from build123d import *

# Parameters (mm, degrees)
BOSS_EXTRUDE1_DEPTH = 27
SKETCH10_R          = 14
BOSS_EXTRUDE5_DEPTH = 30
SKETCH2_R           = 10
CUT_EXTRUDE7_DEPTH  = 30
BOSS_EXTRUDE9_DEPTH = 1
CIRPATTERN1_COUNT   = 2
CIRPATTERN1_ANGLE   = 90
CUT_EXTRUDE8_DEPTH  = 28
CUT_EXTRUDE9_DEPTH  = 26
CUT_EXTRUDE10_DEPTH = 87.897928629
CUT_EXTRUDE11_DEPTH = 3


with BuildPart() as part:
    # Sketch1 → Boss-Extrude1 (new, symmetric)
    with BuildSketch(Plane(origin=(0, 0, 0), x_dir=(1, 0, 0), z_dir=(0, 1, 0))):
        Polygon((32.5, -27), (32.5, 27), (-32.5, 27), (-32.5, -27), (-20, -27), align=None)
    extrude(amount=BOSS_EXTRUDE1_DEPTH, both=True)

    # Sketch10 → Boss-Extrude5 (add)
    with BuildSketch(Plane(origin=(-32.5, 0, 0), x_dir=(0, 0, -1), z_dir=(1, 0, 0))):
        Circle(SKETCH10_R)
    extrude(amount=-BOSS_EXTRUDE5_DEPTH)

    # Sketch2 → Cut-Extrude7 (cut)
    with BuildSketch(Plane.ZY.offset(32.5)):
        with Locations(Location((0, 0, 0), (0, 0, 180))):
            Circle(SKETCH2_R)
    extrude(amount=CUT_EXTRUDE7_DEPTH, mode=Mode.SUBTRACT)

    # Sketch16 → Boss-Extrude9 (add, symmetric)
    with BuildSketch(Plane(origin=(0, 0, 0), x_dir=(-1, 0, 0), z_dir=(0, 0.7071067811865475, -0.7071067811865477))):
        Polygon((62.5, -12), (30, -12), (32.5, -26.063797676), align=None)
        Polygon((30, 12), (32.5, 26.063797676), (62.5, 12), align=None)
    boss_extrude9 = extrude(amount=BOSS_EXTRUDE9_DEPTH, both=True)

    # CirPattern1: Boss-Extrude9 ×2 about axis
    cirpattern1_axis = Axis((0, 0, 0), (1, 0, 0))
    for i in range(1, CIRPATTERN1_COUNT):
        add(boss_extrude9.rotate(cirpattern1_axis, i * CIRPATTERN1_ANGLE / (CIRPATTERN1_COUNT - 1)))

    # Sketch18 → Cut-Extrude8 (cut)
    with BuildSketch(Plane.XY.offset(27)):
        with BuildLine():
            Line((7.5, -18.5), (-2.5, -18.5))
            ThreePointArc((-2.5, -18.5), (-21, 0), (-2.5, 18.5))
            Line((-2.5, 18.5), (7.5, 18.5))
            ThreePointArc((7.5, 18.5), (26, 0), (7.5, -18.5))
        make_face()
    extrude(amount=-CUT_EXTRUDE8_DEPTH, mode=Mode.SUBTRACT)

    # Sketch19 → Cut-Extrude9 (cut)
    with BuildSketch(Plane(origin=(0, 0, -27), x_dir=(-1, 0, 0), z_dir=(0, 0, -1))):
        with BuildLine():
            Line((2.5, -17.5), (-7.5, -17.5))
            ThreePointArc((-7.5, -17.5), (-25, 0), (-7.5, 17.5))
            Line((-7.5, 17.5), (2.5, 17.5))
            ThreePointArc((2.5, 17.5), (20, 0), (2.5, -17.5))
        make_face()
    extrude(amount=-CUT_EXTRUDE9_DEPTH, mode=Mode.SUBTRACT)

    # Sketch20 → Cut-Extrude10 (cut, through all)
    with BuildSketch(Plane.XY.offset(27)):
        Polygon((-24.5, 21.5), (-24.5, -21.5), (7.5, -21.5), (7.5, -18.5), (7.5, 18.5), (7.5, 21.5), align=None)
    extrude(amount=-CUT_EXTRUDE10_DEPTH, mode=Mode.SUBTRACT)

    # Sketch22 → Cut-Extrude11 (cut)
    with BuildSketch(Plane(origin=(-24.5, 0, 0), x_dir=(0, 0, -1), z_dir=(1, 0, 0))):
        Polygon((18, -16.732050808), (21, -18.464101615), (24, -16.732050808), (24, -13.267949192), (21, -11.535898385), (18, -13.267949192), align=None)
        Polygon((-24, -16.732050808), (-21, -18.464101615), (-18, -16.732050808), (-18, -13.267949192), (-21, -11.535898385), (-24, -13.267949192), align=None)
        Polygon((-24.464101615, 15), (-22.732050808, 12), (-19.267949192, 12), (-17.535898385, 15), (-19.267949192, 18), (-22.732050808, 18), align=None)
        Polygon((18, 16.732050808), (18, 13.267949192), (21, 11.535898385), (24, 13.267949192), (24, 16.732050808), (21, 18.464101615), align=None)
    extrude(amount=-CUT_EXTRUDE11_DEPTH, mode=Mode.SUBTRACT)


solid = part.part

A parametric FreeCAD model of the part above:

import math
import FreeCAD as App
import Part
import Sketcher
from FreeCAD import Vector
Q = App.Units.Quantity

doc = App.newDocument("Part")
params = doc.addObject("Spreadsheet::Sheet", "Params")
for row, (alias, value) in enumerate([
    ("sketch1_width", "65 mm"),
    ("sketch1_height", "54 mm"),
    ("pad1_length", "54 mm"),
    ("sketch2_diameter", "28 mm"),
    ("pad2_length", "30 mm"),
    ("sketch3_diameter", "20 mm"),
    ("pocket1_length", "30 mm"),
    ("sketch4_width", "32.5 mm"),
    ("pad3_length", "2 mm"),
    ("sketch5_radius", "18.5 mm"),
    ("sketch5_width", "10 mm"),
    ("pocket2_length", "28 mm"),
    ("sketch6_radius", "17.5 mm"),
    ("sketch6_width", "10 mm"),
    ("pocket3_length", "26 mm"),
    ("sketch7_width", "32 mm"),
    ("sketch7_height", "43 mm"),
    ("pocket5_length", "3 mm"),
], start=1):
    params.set(f"A{row}", alias)
    params.set(f"B{row}", "=" + value)
    params.setAlias(f"B{row}", alias)

body = doc.addObject("PartDesign::Body", "Body")

# Sketch on XZ plane
sketch1 = body.newObject("Sketcher::SketchObject", "Sketch")
sketch1.AttachmentSupport = (doc.getObject("XZ_Plane"), [""])
sketch1.MapMode = "FlatFace"
sketch1.addGeometry([
    Part.LineSegment(Vector(32, 27, 0), Vector(32, -27, 0)),
    Part.LineSegment(Vector(32, -27, 0), Vector(-32, -27, 0)),
    Part.LineSegment(Vector(-32, -27, 0), Vector(-32, 27, 0)),
    Part.LineSegment(Vector(-32, 27, 0), Vector(32, 27, 0)),
], False)
sketch1.addConstraint([
    Sketcher.Constraint("Coincident", 0, 2, 1, 1),
    Sketcher.Constraint("Coincident", 1, 2, 2, 1),
    Sketcher.Constraint("Coincident", 2, 2, 3, 1),
    Sketcher.Constraint("Coincident", 3, 2, 0, 1),
    Sketcher.Constraint("Vertical", 0),
    Sketcher.Constraint("Horizontal", 1),
    Sketcher.Constraint("Vertical", 2),
    Sketcher.Constraint("Horizontal", 3),
    Sketcher.Constraint("Symmetric", 0, 2, 2, 2, -1, 1),
    Sketcher.Constraint("DistanceX", 1, 2, 1, 1, 65.0),
    Sketcher.Constraint("DistanceY", 0, 2, 0, 1, 54.0),
])
sketch1.setExpression("Constraints[9]", "Params.sketch1_width")
sketch1.setExpression("Constraints[10]", "Params.sketch1_height")
pad1 = body.newObject("PartDesign::Pad", "Pad")
pad1.Profile = sketch1
pad1.setExpression("Length", "Params.pad1_length")
pad1.Midplane = True

# Sketch on YZ plane
sketch2 = body.newObject("Sketcher::SketchObject", "Sketch001")
sketch2.AttachmentSupport = (doc.getObject("YZ_Plane"), [""])
sketch2.MapMode = "FlatFace"
sketch2.AttachmentOffset = App.Placement(Vector(0, 0, -32.5), App.Rotation())
sketch2.addGeometry(Part.Circle(Vector(0, 0, 0), Vector(0, 0, 1), 14), False)
sketch2.addConstraint([
    Sketcher.Constraint("Coincident", 0, 3, -1, 1),
    Sketcher.Constraint("Diameter", 0, 28.0),
])
sketch2.setExpression("Constraints[1]", "Params.sketch2_diameter")
pad2 = body.newObject("PartDesign::Pad", "Pad001")
pad2.Profile = sketch2
pad2.setExpression("Length", "Params.pad2_length")
pad2.Reversed = True

# Sketch on YZ plane
sketch3 = body.newObject("Sketcher::SketchObject", "Sketch002")
sketch3.AttachmentSupport = (doc.getObject("YZ_Plane"), [""])
sketch3.MapMode = "FlatFace"
sketch3.AttachmentOffset = App.Placement(Vector(0, 0, -32.5), App.Rotation())
sketch3.addGeometry(Part.Circle(Vector(0, 0, 0), Vector(0, 0, 1), 10), False)
sketch3.addConstraint([
    Sketcher.Constraint("Coincident", 0, 3, -1, 1),
    Sketcher.Constraint("Diameter", 0, 20.0),
])
sketch3.setExpression("Constraints[1]", "Params.sketch3_diameter")
pocket1 = body.newObject("PartDesign::Pocket", "Pocket")
pocket1.Profile = sketch3
pocket1.setExpression("Length", "Params.pocket1_length")

# Sketch on an angled plane
sketch4 = body.newObject("Sketcher::SketchObject", "Sketch003")
sketch4.Placement = App.Placement(Vector(0, 0, 0), App.Rotation(Vector(-1, 0, 0), Vector(0, 0.707106781, 0.707106781), Vector(0, 0.707106781, -0.707106781), "ZXY"))
sketch4.addGeometry([
    Part.LineSegment(Vector(62, -12, 0), Vector(30, -12, 0)),  # 0
    Part.LineSegment(Vector(30, -12, 0), Vector(32, -26, 0)),  # 1
    Part.LineSegment(Vector(32, -26, 0), Vector(62, -12, 0)),  # 2
    Part.LineSegment(Vector(32, 26, 0), Vector(30, 12, 0)),  # 3
    Part.LineSegment(Vector(30, 12, 0), Vector(62, 12, 0)),  # 4
    Part.LineSegment(Vector(62, 12, 0), Vector(32, 26, 0)),  # 5
], False)
sketch4.addConstraint([
    Sketcher.Constraint("Coincident", 0, 2, 1, 1),
    Sketcher.Constraint("Coincident", 1, 2, 2, 1),
    Sketcher.Constraint("Coincident", 2, 2, 0, 1),
    Sketcher.Constraint("Coincident", 3, 2, 4, 1),
    Sketcher.Constraint("Coincident", 4, 2, 5, 1),
    Sketcher.Constraint("Coincident", 5, 2, 3, 1),
    Sketcher.Constraint("Horizontal", 0),
    Sketcher.Constraint("Horizontal", 4),
    Sketcher.Constraint("Symmetric", 0, 2, 3, 2, -1),
    Sketcher.Constraint("Symmetric", 1, 2, 5, 2, -1),
    Sketcher.Constraint("Vertical", 2, 2, 4, 2),
    Sketcher.Constraint("DistanceX", 0, 2, 0, 1, 32.5),
    Sketcher.Constraint("DistanceX", -1, 1, 0, 2, 30.0),
    Sketcher.Constraint("DistanceY", 0, 2, -1, 1, 12.0),
    Sketcher.Constraint("DistanceX", 1, 2, 2, 2, 30.0),
    Sketcher.Constraint("Distance", 1, 14.284271),
])
sketch4.setExpression("Constraints[11]", "Params.sketch4_width")
pad3 = body.newObject("PartDesign::Pad", "Pad002")
pad3.Profile = sketch4
pad3.setExpression("Length", "Params.pad3_length")
pad3.Midplane = True
doc.recompute()

polarpattern = body.newObject("PartDesign::PolarPattern", "PolarPattern")
polarpattern.Originals = [pad3]
polarpattern.Axis = (doc.getObject("X_Axis"), [""])
polarpattern.Angle = 90
polarpattern.Occurrences = 2
body.Tip = polarpattern

# Sketch on XY plane
sketch5 = body.newObject("Sketcher::SketchObject", "Sketch004")
sketch5.AttachmentSupport = (doc.getObject("XY_Plane"), [""])
sketch5.MapMode = "FlatFace"
sketch5.AttachmentOffset = App.Placement(Vector(0, 0, 27), App.Rotation())
sketch5.addGeometry([
    Part.LineSegment(Vector(-2, -18, 0), Vector(8, -18, 0)),
    Part.ArcOfCircle(Part.Circle(Vector(8, 0, 0), Vector(0, 0, 1), 18), math.radians(-90), math.radians(90)),
    Part.LineSegment(Vector(8, 18, 0), Vector(-2, 18, 0)),
    Part.ArcOfCircle(Part.Circle(Vector(-2, 0, 0), Vector(0, 0, 1), 18), math.radians(90), math.radians(270)),
], False)
sketch5.addConstraint([
    Sketcher.Constraint("Tangent", 0, 2, 1, 1),
    Sketcher.Constraint("Tangent", 1, 2, 2, 1),
    Sketcher.Constraint("Tangent", 2, 2, 3, 1),
    Sketcher.Constraint("Tangent", 3, 2, 0, 1),
    Sketcher.Constraint("Horizontal", 0),
    Sketcher.Constraint("Horizontal", 2),
    Sketcher.Constraint("PointOnObject", 1, 3, -1),
    Sketcher.Constraint("Radius", 1, 18.5),
    Sketcher.Constraint("DistanceX", 0, 1, 0, 2, 10.0),
    Sketcher.Constraint("DistanceX", -1, 1, 1, 3, 7.5),
])
sketch5.setExpression("Constraints[7]", "Params.sketch5_radius")
sketch5.setExpression("Constraints[8]", "Params.sketch5_width")
pocket2 = body.newObject("PartDesign::Pocket", "Pocket001")
pocket2.Profile = sketch5
pocket2.setExpression("Length", "Params.pocket2_length")

# Sketch on XY plane
sketch6 = body.newObject("Sketcher::SketchObject", "Sketch005")
sketch6.AttachmentSupport = (doc.getObject("XY_Plane"), [""])
sketch6.MapMode = "FlatFace"
sketch6.AttachmentOffset = App.Placement(Vector(0, 0, -27), App.Rotation())
sketch6.addGeometry([
    Part.LineSegment(Vector(8, -18, 0), Vector(-2, -18, 0)),
    Part.ArcOfCircle(Part.Circle(Vector(-2, 0, 0), Vector(0, 0, 1), 18), math.radians(90), math.radians(270)),
    Part.LineSegment(Vector(-2, 18, 0), Vector(8, 18, 0)),
    Part.ArcOfCircle(Part.Circle(Vector(8, 0, 0), Vector(0, 0, 1), 18), math.radians(-90), math.radians(90)),
], False)
sketch6.addConstraint([
    Sketcher.Constraint("Tangent", 0, 2, 1, 2),
    Sketcher.Constraint("Tangent", 1, 1, 2, 1),
    Sketcher.Constraint("Tangent", 2, 2, 3, 2),
    Sketcher.Constraint("Tangent", 3, 1, 0, 1),
    Sketcher.Constraint("Horizontal", 0),
    Sketcher.Constraint("Horizontal", 2),
    Sketcher.Constraint("PointOnObject", 1, 3, -1),
    Sketcher.Constraint("Radius", 1, 17.5),
    Sketcher.Constraint("DistanceX", 0, 2, 0, 1, 10.0),
    Sketcher.Constraint("DistanceX", 1, 3, -1, 1, 2.5),
])
sketch6.setExpression("Constraints[7]", "Params.sketch6_radius")
sketch6.setExpression("Constraints[8]", "Params.sketch6_width")
pocket3 = body.newObject("PartDesign::Pocket", "Pocket002")
pocket3.Profile = sketch6
pocket3.setExpression("Length", "Params.pocket3_length")
pocket3.Reversed = True

# Sketch on XY plane
sketch7 = body.newObject("Sketcher::SketchObject", "Sketch006")
sketch7.AttachmentSupport = (doc.getObject("XY_Plane"), [""])
sketch7.MapMode = "FlatFace"
sketch7.AttachmentOffset = App.Placement(Vector(0, 0, 27), App.Rotation())
sketch7.addGeometry([
    Part.LineSegment(Vector(-24, 22, 0), Vector(-24, -22, 0)),
    Part.LineSegment(Vector(-24, -22, 0), Vector(8, -22, 0)),
    Part.LineSegment(Vector(8, -22, 0), Vector(8, 22, 0)),
    Part.LineSegment(Vector(8, 22, 0), Vector(-24, 22, 0)),
], False)
sketch7.addConstraint([
    Sketcher.Constraint("Coincident", 0, 2, 1, 1),
    Sketcher.Constraint("Coincident", 1, 2, 2, 1),
    Sketcher.Constraint("Coincident", 2, 2, 3, 1),
    Sketcher.Constraint("Coincident", 3, 2, 0, 1),
    Sketcher.Constraint("Vertical", 0),
    Sketcher.Constraint("Horizontal", 1),
    Sketcher.Constraint("Vertical", 2),
    Sketcher.Constraint("Horizontal", 3),
    Sketcher.Constraint("DistanceX", 1, 1, 1, 2, 32.0),
    Sketcher.Constraint("DistanceY", 0, 2, 0, 1, 43.0),
    Sketcher.Constraint("DistanceX", 0, 2, -1, 1, 24.5),
    Sketcher.Constraint("DistanceY", 0, 2, -1, 1, 21.5),
])
sketch7.setExpression("Constraints[8]", "Params.sketch7_width")
sketch7.setExpression("Constraints[9]", "Params.sketch7_height")
pocket4 = body.newObject("PartDesign::Pocket", "Pocket003")
pocket4.Profile = sketch7
pocket4.Type = "ThroughAll"

# Sketch on YZ plane
sketch8 = body.newObject("Sketcher::SketchObject", "Sketch007")
sketch8.AttachmentSupport = (doc.getObject("YZ_Plane"), [""])
sketch8.MapMode = "FlatFace"
sketch8.AttachmentOffset = App.Placement(Vector(0, 0, -24.5), App.Rotation())
sketch8.addGeometry([
    Part.LineSegment(Vector(-16.7, -18, 0), Vector(-18.5, -21, 0)),  # 0
    Part.LineSegment(Vector(-18.5, -21, 0), Vector(-16.7, -24, 0)),  # 1
    Part.LineSegment(Vector(-16.7, -24, 0), Vector(-13.3, -24, 0)),  # 2
    Part.LineSegment(Vector(-13.3, -24, 0), Vector(-11.5, -21, 0)),  # 3
    Part.LineSegment(Vector(-11.5, -21, 0), Vector(-13.3, -18, 0)),  # 4
    Part.LineSegment(Vector(-13.3, -18, 0), Vector(-16.7, -18, 0)),  # 5
    Part.LineSegment(Vector(-16.7, 24, 0), Vector(-18.5, 21, 0)),  # 6
    Part.LineSegment(Vector(-18.5, 21, 0), Vector(-16.7, 18, 0)),  # 7
    Part.LineSegment(Vector(-16.7, 18, 0), Vector(-13.3, 18, 0)),  # 8
    Part.LineSegment(Vector(-13.3, 18, 0), Vector(-11.5, 21, 0)),  # 9
    Part.LineSegment(Vector(-11.5, 21, 0), Vector(-13.3, 24, 0)),  # 10
    Part.LineSegment(Vector(-13.3, 24, 0), Vector(-16.7, 24, 0)),  # 11
    Part.LineSegment(Vector(15, 24.5, 0), Vector(12, 22.7, 0)),  # 12
    Part.LineSegment(Vector(12, 22.7, 0), Vector(12, 19.3, 0)),  # 13
    Part.LineSegment(Vector(12, 19.3, 0), Vector(15, 17.5, 0)),  # 14
    Part.LineSegment(Vector(15, 17.5, 0), Vector(18, 19.3, 0)),  # 15
    Part.LineSegment(Vector(18, 19.3, 0), Vector(18, 22.7, 0)),  # 16
    Part.LineSegment(Vector(18, 22.7, 0), Vector(15, 24.5, 0)),  # 17
    Part.LineSegment(Vector(16.7, -18, 0), Vector(13.3, -18, 0)),  # 18
    Part.LineSegment(Vector(13.3, -18, 0), Vector(11.5, -21, 0)),  # 19
    Part.LineSegment(Vector(11.5, -21, 0), Vector(13.3, -24, 0)),  # 20
    Part.LineSegment(Vector(13.3, -24, 0), Vector(16.7, -24, 0)),  # 21
    Part.LineSegment(Vector(16.7, -24, 0), Vector(18.5, -21, 0)),  # 22
    Part.LineSegment(Vector(18.5, -21, 0), Vector(16.7, -18, 0)),  # 23
], False)
sketch8.addConstraint([
    Sketcher.Constraint("Coincident", 0, 2, 1, 1),
    Sketcher.Constraint("Coincident", 1, 2, 2, 1),
    Sketcher.Constraint("Coincident", 2, 2, 3, 1),
    Sketcher.Constraint("Coincident", 3, 2, 4, 1),
    Sketcher.Constraint("Coincident", 4, 2, 5, 1),
    Sketcher.Constraint("Coincident", 5, 2, 0, 1),
    Sketcher.Constraint("Coincident", 6, 2, 7, 1),
    Sketcher.Constraint("Coincident", 7, 2, 8, 1),
    Sketcher.Constraint("Coincident", 8, 2, 9, 1),
    Sketcher.Constraint("Coincident", 9, 2, 10, 1),
    Sketcher.Constraint("Coincident", 10, 2, 11, 1),
    Sketcher.Constraint("Coincident", 11, 2, 6, 1),
    Sketcher.Constraint("Coincident", 12, 2, 13, 1),
    Sketcher.Constraint("Coincident", 13, 2, 14, 1),
    Sketcher.Constraint("Coincident", 14, 2, 15, 1),
    Sketcher.Constraint("Coincident", 15, 2, 16, 1),
    Sketcher.Constraint("Coincident", 16, 2, 17, 1),
    Sketcher.Constraint("Coincident", 17, 2, 12, 1),
    Sketcher.Constraint("Coincident", 18, 2, 19, 1),
    Sketcher.Constraint("Coincident", 19, 2, 20, 1),
    Sketcher.Constraint("Coincident", 20, 2, 21, 1),
    Sketcher.Constraint("Coincident", 21, 2, 22, 1),
    Sketcher.Constraint("Coincident", 22, 2, 23, 1),
    Sketcher.Constraint("Coincident", 23, 2, 18, 1),
    Sketcher.Constraint("Horizontal", 2),
    Sketcher.Constraint("Horizontal", 5),
    Sketcher.Constraint("Horizontal", 8),
    Sketcher.Constraint("Horizontal", 11),
    Sketcher.Constraint("Vertical", 13),
    Sketcher.Constraint("Vertical", 16),
    Sketcher.Constraint("Horizontal", 18),
    Sketcher.Constraint("Horizontal", 21),
    Sketcher.Constraint("Symmetric", 8, 2, 18, 2, -1, 1),
    Sketcher.Constraint("Symmetric", 9, 2, 19, 2, -1, 1),
    Sketcher.Constraint("Symmetric", 10, 2, 20, 2, -1, 1),
    Sketcher.Constraint("Symmetric", 6, 2, 22, 2, -1, 1),
    Sketcher.Constraint("Symmetric", 4, 2, 18, 2, -2),
    Sketcher.Constraint("Symmetric", 3, 2, 19, 2, -2),
    Sketcher.Constraint("Symmetric", 2, 2, 20, 2, -2),
    Sketcher.Constraint("Symmetric", 0, 2, 22, 2, -2),
    Sketcher.Constraint("Parallel", 0, 3),
    Sketcher.Constraint("Parallel", 1, 4),
    Sketcher.Constraint("Parallel", 3, 6),
    Sketcher.Constraint("Parallel", 4, 7),
    Sketcher.Constraint("Parallel", 6, 9),
    Sketcher.Constraint("Perpendicular", 10, 12),
    Sketcher.Constraint("Perpendicular", 9, 14),
    Sketcher.Constraint("Parallel", 12, 15),
    Sketcher.Constraint("Parallel", 14, 17),
    Sketcher.Constraint("Parallel", 19, 22),
    Sketcher.Constraint("Parallel", 20, 23),
    Sketcher.Constraint("Horizontal", 0, 2, 3, 2),
    Sketcher.Constraint("Horizontal", 13, 2, 15, 2),
    Sketcher.Constraint("Horizontal", 12, 2, 16, 2),
    Sketcher.Constraint("Vertical", 2, 2, 4, 2),
    Sketcher.Constraint("Equal", 21, 13),
    Sketcher.Constraint("Equal", 10, 12),
    Sketcher.Constraint("Angle", 0, Q("-120 deg")),
    Sketcher.Constraint("DistanceY", 0, 2, -1, 1, 21.0),
    Sketcher.Constraint("DistanceY", 1, 2, -1, 1, 24.0),
    Sketcher.Constraint("DistanceX", -1, 1, 12, 2, 12.0),
    Sketcher.Constraint("DistanceX", 5, 2, 18, 2, 30.0),
    Sketcher.Constraint("DistanceX", 2, 1, 2, 2, 3.464102),
    Sketcher.Constraint("DistanceY", -1, 1, 14, 2, 17.535898),
])
pocket5 = body.newObject("PartDesign::Pocket", "Pocket004")
pocket5.Profile = sketch8
pocket5.setExpression("Length", "Params.pocket5_length")

doc.recompute()
